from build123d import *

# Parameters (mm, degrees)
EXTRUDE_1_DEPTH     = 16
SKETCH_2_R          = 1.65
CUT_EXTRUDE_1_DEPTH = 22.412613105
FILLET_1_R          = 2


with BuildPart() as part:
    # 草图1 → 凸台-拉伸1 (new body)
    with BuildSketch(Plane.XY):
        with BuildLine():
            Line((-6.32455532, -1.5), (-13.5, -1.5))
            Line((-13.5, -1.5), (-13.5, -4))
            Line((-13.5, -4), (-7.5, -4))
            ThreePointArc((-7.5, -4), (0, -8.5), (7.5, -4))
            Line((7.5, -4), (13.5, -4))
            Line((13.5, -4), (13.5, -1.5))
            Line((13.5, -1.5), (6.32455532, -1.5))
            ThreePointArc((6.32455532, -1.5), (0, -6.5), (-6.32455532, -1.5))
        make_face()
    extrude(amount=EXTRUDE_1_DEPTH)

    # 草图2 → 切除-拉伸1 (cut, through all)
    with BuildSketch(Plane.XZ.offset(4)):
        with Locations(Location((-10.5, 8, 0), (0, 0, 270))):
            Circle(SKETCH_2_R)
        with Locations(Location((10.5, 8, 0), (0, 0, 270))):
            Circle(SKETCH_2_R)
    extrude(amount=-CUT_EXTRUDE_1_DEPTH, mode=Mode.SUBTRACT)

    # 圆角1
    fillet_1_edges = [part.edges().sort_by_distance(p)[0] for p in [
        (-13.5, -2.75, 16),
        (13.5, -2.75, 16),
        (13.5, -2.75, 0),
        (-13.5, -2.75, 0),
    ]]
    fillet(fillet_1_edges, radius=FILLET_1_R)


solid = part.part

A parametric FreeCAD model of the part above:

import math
import FreeCAD as App
import Part
import Sketcher

V = App.Vector
Q = App.Units.Quantity


def edges_at(feature, points):
    """Names of the edges that pass closest to the given points."""
    edges = feature.Shape.Edges
    near = lambda p: min(range(len(edges)), key=lambda i: edges[i].distToShape(Part.Vertex(*p))[0])
    return sorted({f"Edge{near(p) + 1}" for p in points})

doc = App.newDocument("Part")
params = doc.addObject("Spreadsheet::Sheet", "Params")
for row, (alias, value) in enumerate([
    ("sketch1_radius", "8.5 mm"),
    ("sketch1_radius2", "6.5 mm"),
    ("sketch1_width", "6 mm"),
    ("sketch1_height", "2.5 mm"),
    ("pad1_length", "16 mm"),
    ("sketch2_diameter", "3.3 mm"),
    ("fillet_radius", "2 mm"),
], start=1):
    params.set(f"A{row}", alias)
    params.set(f"B{row}", "=" + value)
    params.setAlias(f"B{row}", alias)

body = doc.addObject("PartDesign::Body", "Body")

# Sketch on XY plane
sketch1 = body.newObject("Sketcher::SketchObject", "Sketch")
sketch1.AttachmentSupport = (doc.getObject("XY_Plane"), [""])
sketch1.MapMode = "FlatFace"
sketch1.addGeometry([
    Part.LineSegment(V(-6.324555, -1.5, 0), V(-13.5, -1.5, 0)),  # 0
    Part.LineSegment(V(-13.5, -1.5, 0), V(-13.5, -4, 0)),  # 1
    Part.LineSegment(V(-13.5, -4, 0), V(-7.5, -4, 0)),  # 2
    Part.ArcOfCircle(Part.Circle(V(0, 0, 0), V(0, 0, 1), 8.5), math.radians(-151.927513), math.radians(-28.072487)),  # 3
    Part.LineSegment(V(7.5, -4, 0), V(13.5, -4, 0)),  # 4
    Part.LineSegment(V(13.5, -4, 0), V(13.5, -1.5, 0)),  # 5
    Part.LineSegment(V(13.5, -1.5, 0), V(6.324555, -1.5, 0)),  # 6
    Part.ArcOfCircle(Part.Circle(V(0, 0, 0), V(0, 0, 1), 6.5), math.radians(-166.657636), math.radians(-13.342364)),  # 7
], False)
sketch1.addConstraint([
    Sketcher.Constraint("Coincident", 0, 2, 1, 1),
    Sketcher.Constraint("Coincident", 1, 2, 2, 1),
    Sketcher.Constraint("Coincident", 2, 2, 3, 1),
    Sketcher.Constraint("Coincident", 3, 2, 4, 1),
    Sketcher.Constraint("Coincident", 4, 2, 5, 1),
    Sketcher.Constraint("Coincident", 5, 2, 6, 1),
    Sketcher.Constraint("Coincident", 6, 2, 7, 2),
    Sketcher.Constraint("Coincident", 7, 1, 0, 1),
    Sketcher.Constraint("Horizontal", 0),
    Sketcher.Constraint("Vertical", 1),
    Sketcher.Constraint("Horizontal", 2),
    Sketcher.Constraint("Horizontal", 4),
    Sketcher.Constraint("Vertical", 5),
    Sketcher.Constraint("Horizontal", 6),
    Sketcher.Constraint("Coincident", 3, 3, -1, 1),
    Sketcher.Constraint("Coincident", 7, 3, -1, 1),
    Sketcher.Constraint("Symmetric", 1, 2, 4, 2, -2),
    Sketcher.Constraint("Horizontal", 0, 2, 5, 2),
    Sketcher.Constraint("Radius", 3, Q("8.5 mm")),
    Sketcher.Constraint("Radius", 7, Q("6.5 mm")),
    Sketcher.Constraint("DistanceX", 2, 1, 2, 2, Q("6 mm")),
    Sketcher.Constraint("DistanceY", 1, 2, 1, 1, Q("2.5 mm")),
    Sketcher.Constraint("DistanceY", 1, 2, -1, 1, Q("4 mm")),
])
sketch1.setExpression("Constraints[18]", "Params.sketch1_radius")
sketch1.setExpression("Constraints[19]", "Params.sketch1_radius2")
sketch1.setExpression("Constraints[20]", "Params.sketch1_width")
sketch1.setExpression("Constraints[21]", "Params.sketch1_height")
pad1 = body.newObject("PartDesign::Pad", "Pad")
pad1.Profile = sketch1
pad1.setExpression("Length", "Params.pad1_length")

# Sketch on XZ plane
sketch2 = body.newObject("Sketcher::SketchObject", "Sketch001")
sketch2.AttachmentSupport = (doc.getObject("XZ_Plane"), [""])
sketch2.MapMode = "FlatFace"
sketch2.AttachmentOffset = App.Placement(V(0, 0, 4), App.Rotation())
sketch2.addGeometry([
    Part.Circle(V(-10.5, 8, 0), V(0, 0, 1), 1.65),
    Part.Circle(V(10.5, 8, 0), V(0, 0, 1), 1.65),
], False)
sketch2.addConstraint([
    Sketcher.Constraint("Equal", 0, 1),
    Sketcher.Constraint("Symmetric", 0, 3, 1, 3, -2),
    Sketcher.Constraint("Diameter", 0, Q("3.3 mm")),
    Sketcher.Constraint("DistanceY", -1, 1, 0, 3, Q("8 mm")),
    Sketcher.Constraint("DistanceX", 0, 3, 1, 3, Q("21 mm")),
])
sketch2.setExpression("Constraints[2]", "Params.sketch2_diameter")
pocket1 = body.newObject("PartDesign::Pocket", "Pocket")
pocket1.Profile = sketch2
pocket1.Type = "ThroughAll"
doc.recompute()

fillet = body.newObject("PartDesign::Fillet", "Fillet")
fillet.Base = (pocket1, edges_at(pocket1, [
    (-13.5, -2.75, 16),
    (13.5, -2.75, 16),
    (13.5, -2.75, 0),
    (-13.5, -2.75, 0),
]))
fillet.setExpression("Radius", "Params.fillet_radius")

doc.recompute()
